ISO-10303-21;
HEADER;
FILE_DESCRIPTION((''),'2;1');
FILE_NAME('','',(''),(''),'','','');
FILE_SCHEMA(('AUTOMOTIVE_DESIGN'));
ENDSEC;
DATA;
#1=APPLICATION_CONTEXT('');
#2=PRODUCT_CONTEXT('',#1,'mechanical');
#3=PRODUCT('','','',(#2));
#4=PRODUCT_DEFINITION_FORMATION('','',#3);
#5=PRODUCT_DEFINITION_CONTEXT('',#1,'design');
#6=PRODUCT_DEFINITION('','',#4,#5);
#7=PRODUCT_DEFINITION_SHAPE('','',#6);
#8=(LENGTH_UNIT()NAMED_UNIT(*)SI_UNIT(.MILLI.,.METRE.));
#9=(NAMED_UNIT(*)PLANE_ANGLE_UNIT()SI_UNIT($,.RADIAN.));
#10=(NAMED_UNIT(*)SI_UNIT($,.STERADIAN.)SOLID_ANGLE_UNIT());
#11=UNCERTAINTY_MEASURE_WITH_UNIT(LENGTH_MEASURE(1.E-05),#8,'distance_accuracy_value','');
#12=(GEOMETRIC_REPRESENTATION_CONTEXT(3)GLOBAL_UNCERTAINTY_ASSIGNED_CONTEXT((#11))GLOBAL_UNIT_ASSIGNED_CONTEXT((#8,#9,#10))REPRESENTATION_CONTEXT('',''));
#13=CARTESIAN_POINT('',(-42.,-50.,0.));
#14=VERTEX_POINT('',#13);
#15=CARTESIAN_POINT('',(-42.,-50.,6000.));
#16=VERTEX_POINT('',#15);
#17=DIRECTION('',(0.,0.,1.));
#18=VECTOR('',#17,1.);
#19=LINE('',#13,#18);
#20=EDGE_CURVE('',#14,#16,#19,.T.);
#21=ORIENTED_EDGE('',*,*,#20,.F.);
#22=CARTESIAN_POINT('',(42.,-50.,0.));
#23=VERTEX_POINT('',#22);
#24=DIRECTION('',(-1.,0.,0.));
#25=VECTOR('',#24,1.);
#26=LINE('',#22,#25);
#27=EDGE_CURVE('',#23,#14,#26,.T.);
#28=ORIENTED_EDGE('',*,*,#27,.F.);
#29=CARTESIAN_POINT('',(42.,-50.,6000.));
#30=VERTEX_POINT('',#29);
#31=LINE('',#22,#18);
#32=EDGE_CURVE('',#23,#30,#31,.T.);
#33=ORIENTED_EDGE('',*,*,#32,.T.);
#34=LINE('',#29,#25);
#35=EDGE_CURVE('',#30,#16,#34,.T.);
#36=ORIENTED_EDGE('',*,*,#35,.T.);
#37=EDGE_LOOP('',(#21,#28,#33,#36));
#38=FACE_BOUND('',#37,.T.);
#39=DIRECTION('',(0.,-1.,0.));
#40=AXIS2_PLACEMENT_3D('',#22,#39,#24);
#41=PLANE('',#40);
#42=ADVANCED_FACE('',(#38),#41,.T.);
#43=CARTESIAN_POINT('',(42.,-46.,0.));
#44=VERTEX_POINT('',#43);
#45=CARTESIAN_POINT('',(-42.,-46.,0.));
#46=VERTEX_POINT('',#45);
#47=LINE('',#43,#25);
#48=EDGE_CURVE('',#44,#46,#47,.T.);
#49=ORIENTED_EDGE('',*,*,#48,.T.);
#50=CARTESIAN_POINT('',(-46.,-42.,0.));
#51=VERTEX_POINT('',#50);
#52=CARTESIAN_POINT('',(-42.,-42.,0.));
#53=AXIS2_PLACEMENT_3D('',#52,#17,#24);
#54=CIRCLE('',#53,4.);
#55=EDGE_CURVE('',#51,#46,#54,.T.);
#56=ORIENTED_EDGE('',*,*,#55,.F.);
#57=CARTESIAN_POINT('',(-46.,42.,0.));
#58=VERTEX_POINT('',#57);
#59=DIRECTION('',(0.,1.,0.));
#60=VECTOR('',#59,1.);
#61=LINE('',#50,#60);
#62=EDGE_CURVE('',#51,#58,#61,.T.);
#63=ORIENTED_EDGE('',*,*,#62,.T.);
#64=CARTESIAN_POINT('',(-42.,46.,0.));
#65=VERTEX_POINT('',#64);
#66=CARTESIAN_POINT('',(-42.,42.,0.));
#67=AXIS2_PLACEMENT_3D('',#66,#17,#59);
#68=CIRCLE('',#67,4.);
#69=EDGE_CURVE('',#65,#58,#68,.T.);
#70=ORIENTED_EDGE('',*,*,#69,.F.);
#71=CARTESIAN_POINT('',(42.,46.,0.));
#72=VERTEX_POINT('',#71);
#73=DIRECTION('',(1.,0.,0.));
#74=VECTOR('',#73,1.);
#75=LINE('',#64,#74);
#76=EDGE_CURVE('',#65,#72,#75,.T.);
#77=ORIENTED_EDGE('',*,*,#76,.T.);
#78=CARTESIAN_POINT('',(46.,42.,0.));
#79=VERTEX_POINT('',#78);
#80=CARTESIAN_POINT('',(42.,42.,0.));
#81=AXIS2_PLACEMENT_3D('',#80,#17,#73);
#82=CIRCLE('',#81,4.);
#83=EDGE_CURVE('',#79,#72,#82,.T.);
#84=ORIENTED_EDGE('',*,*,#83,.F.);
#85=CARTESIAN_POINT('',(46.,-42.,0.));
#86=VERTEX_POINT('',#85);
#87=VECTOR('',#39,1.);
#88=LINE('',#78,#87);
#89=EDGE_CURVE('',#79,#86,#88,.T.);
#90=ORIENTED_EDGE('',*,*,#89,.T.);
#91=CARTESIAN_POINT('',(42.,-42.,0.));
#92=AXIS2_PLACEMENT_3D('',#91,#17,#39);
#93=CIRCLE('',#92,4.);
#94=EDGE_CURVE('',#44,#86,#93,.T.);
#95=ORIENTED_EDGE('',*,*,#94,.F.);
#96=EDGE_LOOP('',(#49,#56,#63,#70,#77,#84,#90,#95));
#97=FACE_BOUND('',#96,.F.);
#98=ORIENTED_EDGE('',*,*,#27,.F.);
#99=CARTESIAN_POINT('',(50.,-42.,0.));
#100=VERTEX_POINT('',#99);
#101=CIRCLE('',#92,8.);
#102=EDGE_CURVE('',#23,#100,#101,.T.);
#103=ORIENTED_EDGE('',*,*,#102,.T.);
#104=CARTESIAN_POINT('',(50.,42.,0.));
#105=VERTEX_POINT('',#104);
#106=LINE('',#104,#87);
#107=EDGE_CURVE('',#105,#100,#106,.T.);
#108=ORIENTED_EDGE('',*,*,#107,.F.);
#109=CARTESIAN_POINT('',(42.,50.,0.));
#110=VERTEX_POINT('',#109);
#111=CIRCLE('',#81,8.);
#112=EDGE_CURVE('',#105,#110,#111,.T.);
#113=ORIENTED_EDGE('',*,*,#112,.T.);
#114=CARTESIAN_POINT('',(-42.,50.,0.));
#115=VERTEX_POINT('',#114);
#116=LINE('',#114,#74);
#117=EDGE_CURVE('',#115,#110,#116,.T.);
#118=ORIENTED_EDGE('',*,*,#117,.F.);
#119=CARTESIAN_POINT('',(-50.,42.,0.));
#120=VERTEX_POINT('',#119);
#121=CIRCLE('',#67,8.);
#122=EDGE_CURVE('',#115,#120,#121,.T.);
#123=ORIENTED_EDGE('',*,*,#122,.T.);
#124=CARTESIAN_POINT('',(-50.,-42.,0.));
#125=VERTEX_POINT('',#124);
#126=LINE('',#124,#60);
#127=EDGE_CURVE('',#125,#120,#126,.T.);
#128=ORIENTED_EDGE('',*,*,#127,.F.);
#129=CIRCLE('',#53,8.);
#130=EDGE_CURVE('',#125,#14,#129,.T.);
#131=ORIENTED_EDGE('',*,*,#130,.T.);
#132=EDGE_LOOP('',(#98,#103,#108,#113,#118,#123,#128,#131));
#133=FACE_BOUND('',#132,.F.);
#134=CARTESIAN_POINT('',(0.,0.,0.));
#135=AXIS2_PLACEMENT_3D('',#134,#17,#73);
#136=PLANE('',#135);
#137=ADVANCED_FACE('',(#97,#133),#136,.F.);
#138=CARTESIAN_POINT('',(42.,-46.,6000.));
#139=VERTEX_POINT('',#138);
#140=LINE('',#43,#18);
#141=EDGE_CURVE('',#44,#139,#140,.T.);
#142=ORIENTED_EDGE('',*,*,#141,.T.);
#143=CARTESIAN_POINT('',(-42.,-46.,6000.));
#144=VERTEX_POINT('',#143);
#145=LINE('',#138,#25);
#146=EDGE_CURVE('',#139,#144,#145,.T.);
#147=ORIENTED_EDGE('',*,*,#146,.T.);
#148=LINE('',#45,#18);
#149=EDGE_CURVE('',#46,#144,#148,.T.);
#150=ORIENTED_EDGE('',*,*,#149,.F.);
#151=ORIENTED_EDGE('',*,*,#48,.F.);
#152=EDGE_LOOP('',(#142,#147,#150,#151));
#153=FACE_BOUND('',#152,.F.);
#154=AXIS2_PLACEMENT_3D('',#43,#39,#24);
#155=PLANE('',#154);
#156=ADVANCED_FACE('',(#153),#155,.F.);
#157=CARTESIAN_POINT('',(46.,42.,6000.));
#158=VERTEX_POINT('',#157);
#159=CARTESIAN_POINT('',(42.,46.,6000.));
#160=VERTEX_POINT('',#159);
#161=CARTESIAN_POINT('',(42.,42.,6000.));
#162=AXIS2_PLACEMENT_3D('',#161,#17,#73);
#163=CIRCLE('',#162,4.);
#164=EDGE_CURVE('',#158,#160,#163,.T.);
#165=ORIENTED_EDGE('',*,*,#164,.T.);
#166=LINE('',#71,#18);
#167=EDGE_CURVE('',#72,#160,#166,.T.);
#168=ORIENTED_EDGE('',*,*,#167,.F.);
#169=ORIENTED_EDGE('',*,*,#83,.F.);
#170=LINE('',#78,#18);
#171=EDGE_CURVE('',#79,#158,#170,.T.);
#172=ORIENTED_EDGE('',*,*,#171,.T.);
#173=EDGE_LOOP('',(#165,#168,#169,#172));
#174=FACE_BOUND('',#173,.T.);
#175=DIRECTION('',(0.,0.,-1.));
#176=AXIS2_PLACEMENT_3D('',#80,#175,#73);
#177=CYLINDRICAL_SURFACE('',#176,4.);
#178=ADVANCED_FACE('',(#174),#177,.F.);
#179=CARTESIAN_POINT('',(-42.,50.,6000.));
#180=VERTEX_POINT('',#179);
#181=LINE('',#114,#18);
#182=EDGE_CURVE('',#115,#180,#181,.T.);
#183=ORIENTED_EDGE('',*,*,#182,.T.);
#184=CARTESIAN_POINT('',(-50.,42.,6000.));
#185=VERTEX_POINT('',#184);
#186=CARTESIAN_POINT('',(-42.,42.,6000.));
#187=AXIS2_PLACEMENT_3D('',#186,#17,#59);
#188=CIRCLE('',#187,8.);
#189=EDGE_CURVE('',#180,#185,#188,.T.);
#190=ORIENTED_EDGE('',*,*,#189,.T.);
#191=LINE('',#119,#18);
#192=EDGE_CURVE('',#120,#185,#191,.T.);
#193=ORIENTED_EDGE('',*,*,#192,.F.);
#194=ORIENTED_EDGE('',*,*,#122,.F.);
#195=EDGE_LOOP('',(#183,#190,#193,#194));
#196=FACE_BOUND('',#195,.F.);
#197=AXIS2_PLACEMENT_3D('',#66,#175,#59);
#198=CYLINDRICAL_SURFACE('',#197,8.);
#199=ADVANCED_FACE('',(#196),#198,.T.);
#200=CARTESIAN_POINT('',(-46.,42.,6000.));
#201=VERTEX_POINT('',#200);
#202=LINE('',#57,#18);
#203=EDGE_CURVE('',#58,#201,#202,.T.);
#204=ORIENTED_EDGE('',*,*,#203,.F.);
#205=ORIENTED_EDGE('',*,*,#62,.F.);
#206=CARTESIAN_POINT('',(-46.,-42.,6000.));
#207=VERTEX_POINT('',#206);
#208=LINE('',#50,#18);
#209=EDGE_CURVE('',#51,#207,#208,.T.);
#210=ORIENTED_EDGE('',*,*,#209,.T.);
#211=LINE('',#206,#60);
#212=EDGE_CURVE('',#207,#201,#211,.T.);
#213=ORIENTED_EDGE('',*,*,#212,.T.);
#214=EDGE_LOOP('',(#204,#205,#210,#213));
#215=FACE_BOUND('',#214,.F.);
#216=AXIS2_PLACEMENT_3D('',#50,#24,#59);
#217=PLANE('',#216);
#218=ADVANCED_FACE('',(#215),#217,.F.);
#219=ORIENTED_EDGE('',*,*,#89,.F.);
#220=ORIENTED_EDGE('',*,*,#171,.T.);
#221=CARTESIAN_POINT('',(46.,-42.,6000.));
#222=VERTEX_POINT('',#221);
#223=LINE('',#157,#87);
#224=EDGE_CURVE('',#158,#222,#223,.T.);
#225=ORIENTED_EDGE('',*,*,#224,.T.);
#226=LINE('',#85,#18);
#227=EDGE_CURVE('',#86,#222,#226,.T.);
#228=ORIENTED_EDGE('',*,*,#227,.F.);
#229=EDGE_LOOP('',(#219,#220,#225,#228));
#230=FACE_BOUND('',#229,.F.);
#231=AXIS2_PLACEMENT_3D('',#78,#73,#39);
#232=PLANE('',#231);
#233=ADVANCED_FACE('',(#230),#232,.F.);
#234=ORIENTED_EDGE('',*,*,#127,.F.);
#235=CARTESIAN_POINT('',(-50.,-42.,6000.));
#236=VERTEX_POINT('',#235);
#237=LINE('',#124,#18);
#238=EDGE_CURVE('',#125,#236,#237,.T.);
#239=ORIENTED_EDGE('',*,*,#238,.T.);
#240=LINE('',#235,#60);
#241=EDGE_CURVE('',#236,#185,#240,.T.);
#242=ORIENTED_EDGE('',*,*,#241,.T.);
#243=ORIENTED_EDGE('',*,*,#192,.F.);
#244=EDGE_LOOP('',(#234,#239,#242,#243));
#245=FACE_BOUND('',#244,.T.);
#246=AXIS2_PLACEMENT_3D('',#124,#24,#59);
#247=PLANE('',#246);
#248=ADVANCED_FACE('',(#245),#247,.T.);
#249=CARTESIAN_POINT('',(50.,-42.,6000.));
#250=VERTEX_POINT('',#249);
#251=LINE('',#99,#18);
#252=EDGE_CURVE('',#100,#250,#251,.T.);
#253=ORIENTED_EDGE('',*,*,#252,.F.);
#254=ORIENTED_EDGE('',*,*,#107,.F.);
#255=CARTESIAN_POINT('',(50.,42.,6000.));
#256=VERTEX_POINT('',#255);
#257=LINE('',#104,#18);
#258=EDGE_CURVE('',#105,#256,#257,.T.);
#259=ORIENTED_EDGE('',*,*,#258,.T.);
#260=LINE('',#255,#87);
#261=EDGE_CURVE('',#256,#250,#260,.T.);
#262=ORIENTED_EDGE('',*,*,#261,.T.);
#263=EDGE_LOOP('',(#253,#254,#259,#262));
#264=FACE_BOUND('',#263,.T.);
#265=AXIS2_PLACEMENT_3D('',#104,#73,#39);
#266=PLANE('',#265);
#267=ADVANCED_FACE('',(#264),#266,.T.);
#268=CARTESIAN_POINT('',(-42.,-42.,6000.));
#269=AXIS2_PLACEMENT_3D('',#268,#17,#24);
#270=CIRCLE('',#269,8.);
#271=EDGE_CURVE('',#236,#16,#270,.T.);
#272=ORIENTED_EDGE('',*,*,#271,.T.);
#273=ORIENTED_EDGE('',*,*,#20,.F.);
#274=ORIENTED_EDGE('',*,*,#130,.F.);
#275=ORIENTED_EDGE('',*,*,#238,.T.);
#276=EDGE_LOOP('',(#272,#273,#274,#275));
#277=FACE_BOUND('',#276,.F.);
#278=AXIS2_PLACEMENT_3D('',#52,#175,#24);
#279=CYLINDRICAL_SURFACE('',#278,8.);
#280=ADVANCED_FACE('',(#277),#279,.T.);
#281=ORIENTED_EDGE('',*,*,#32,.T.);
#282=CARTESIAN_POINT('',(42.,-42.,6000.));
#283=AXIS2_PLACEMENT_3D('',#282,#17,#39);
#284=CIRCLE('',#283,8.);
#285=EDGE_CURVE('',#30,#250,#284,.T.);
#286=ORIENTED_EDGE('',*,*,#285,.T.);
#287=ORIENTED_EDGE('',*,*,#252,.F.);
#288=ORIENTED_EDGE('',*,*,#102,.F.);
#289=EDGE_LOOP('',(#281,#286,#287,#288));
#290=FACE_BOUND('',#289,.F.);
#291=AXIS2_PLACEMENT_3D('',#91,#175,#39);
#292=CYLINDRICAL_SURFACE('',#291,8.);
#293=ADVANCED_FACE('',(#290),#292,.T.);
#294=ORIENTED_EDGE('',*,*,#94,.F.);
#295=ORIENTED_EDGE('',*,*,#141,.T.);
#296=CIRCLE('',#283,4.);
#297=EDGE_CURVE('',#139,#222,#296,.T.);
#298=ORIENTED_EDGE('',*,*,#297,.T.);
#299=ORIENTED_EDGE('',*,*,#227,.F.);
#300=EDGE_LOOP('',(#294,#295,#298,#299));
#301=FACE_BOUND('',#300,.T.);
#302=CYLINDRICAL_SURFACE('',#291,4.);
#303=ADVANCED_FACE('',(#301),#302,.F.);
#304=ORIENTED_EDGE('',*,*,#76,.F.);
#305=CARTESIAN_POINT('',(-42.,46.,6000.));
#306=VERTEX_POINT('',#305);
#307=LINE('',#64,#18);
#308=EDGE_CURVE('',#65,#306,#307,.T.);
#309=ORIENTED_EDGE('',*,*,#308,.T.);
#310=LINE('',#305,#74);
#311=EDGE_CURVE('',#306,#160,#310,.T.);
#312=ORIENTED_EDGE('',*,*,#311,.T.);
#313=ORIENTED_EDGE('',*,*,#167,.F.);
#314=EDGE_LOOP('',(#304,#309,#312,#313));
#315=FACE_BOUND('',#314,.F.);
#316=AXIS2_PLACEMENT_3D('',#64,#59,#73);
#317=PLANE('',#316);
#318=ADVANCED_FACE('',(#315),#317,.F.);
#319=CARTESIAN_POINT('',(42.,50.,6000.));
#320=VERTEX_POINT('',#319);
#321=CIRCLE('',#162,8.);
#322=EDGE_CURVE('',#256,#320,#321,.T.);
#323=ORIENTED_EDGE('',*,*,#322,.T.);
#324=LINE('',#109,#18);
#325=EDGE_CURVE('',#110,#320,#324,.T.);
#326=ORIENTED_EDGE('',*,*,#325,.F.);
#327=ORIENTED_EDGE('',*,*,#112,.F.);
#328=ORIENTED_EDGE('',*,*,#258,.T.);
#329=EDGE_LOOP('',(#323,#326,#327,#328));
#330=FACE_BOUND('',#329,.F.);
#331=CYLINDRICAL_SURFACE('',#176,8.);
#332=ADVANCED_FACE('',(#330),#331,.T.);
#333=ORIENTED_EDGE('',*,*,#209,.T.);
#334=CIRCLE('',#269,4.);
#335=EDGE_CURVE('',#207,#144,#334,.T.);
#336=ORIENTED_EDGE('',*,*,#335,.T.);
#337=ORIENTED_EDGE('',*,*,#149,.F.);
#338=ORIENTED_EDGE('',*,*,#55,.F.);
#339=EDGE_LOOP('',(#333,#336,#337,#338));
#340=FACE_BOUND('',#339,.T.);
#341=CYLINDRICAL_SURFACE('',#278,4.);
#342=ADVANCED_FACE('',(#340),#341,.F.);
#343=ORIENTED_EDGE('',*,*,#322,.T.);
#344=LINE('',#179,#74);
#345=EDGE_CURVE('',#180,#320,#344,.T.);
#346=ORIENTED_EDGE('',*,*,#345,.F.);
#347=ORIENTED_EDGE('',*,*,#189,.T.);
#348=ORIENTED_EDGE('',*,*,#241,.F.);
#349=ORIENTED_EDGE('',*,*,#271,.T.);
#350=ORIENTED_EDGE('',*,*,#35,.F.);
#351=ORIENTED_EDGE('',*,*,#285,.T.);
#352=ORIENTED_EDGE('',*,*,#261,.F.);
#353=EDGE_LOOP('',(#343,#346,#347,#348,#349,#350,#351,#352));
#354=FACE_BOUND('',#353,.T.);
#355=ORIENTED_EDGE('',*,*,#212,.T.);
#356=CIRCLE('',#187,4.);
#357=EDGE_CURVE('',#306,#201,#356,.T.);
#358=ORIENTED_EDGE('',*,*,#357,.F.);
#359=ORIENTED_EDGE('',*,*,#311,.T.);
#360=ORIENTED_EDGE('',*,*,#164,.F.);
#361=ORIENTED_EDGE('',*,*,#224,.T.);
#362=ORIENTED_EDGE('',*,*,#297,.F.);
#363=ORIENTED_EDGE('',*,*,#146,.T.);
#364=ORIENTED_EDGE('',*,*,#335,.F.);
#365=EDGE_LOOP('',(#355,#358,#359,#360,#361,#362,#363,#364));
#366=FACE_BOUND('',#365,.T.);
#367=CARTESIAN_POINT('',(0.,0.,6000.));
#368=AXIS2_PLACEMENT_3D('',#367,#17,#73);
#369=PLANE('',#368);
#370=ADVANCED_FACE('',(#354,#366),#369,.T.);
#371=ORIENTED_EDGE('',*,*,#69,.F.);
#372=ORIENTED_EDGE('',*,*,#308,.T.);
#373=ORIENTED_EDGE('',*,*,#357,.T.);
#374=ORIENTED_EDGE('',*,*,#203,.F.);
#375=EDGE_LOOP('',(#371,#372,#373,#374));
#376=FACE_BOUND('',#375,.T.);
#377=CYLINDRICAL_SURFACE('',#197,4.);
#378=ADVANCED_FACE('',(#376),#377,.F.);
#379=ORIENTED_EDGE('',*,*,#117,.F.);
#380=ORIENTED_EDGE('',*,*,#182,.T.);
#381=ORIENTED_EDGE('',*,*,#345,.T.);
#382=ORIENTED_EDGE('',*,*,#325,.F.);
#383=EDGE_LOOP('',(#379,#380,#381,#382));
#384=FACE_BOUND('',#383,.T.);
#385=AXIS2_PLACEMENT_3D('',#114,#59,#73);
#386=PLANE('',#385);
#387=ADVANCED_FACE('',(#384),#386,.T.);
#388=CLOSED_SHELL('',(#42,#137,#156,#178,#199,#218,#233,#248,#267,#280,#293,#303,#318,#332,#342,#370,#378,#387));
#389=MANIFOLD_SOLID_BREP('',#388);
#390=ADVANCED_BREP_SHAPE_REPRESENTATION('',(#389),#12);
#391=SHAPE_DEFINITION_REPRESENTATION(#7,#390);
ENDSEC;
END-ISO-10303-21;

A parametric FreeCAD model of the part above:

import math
import FreeCAD as App
import Part
import Sketcher

V = App.Vector
Q = App.Units.Quantity

doc = App.newDocument("Part")
params = doc.addObject("Spreadsheet::Sheet", "Params")
for row, (alias, value) in enumerate([
    ("sketch1_radius", "8 mm"),
    ("sketch1_radius2", "4 mm"),
    ("pad1_length", "6000 mm"),
], start=1):
    params.set(f"A{row}", alias)
    params.set(f"B{row}", "=" + value)
    params.setAlias(f"B{row}", alias)

body = doc.addObject("PartDesign::Body", "Body")

# Sketch on XY plane
sketch1 = body.newObject("Sketcher::SketchObject", "Sketch")
sketch1.AttachmentSupport = (doc.getObject("XY_Plane"), [""])
sketch1.MapMode = "FlatFace"
sketch1.addGeometry(Part.LineSegment(V(-50, 42, 0), V(-50, -42, 0)), False)
sketch1.addGeometry(Part.ArcOfCircle(Part.Circle(V(-42, -42, 0), V(0, 0, 1), 8), math.radians(180), math.radians(270)), False)
sketch1.addGeometry(Part.LineSegment(V(-42, -50, 0), V(42, -50, 0)), False)
sketch1.addGeometry(Part.ArcOfCircle(Part.Circle(V(42, -42, 0), V(0, 0, 1), 8), math.radians(-90), math.radians(0)), False)
sketch1.addGeometry(Part.LineSegment(V(50, -42, 0), V(50, 42, 0)), False)
sketch1.addGeometry(Part.ArcOfCircle(Part.Circle(V(42, 42, 0), V(0, 0, 1), 8), math.radians(0), math.radians(90)), False)
sketch1.addGeometry(Part.LineSegment(V(42, 50, 0), V(-42, 50, 0)), False)
sketch1.addGeometry(Part.ArcOfCircle(Part.Circle(V(-42, 42, 0), V(0, 0, 1), 8), math.radians(90), math.radians(180)), False)
sketch1.addGeometry(Part.ArcOfCircle(Part.Circle(V(-42, 42, 0), V(0, 0, 1), 4), math.radians(90), math.radians(180)), False)
sketch1.addGeometry(Part.LineSegment(V(-42, 46, 0), V(42, 46, 0)), False)
sketch1.addGeometry(Part.ArcOfCircle(Part.Circle(V(42, 42, 0), V(0, 0, 1), 4), math.radians(0), math.radians(90)), False)
sketch1.addGeometry(Part.LineSegment(V(46, 42, 0), V(46, -42, 0)), False)
sketch1.addGeometry(Part.ArcOfCircle(Part.Circle(V(42, -42, 0), V(0, 0, 1), 4), math.radians(-90), math.radians(0)), False)
sketch1.addGeometry(Part.LineSegment(V(42, -46, 0), V(-42, -46, 0)), False)
sketch1.addGeometry(Part.ArcOfCircle(Part.Circle(V(-42, -42, 0), V(0, 0, 1), 4), math.radians(180), math.radians(270)), False)
sketch1.addGeometry(Part.LineSegment(V(-46, -42, 0), V(-46, 42, 0)), False)
sketch1.addConstraint(Sketcher.Constraint("Tangent", 0, 2, 1, 1))
sketch1.addConstraint(Sketcher.Constraint("Tangent", 1, 2, 2, 1))
sketch1.addConstraint(Sketcher.Constraint("Tangent", 2, 2, 3, 1))
sketch1.addConstraint(Sketcher.Constraint("Tangent", 3, 2, 4, 1))
sketch1.addConstraint(Sketcher.Constraint("Tangent", 4, 2, 5, 1))
sketch1.addConstraint(Sketcher.Constraint("Tangent", 5, 2, 6, 1))
sketch1.addConstraint(Sketcher.Constraint("Tangent", 6, 2, 7, 1))
sketch1.addConstraint(Sketcher.Constraint("Tangent", 7, 2, 0, 1))
sketch1.addConstraint(Sketcher.Constraint("Tangent", 8, 1, 9, 1))
sketch1.addConstraint(Sketcher.Constraint("Tangent", 9, 2, 10, 2))
sketch1.addConstraint(Sketcher.Constraint("Tangent", 10, 1, 11, 1))
sketch1.addConstraint(Sketcher.Constraint("Tangent", 11, 2, 12, 2))
sketch1.addConstraint(Sketcher.Constraint("Tangent", 12, 1, 13, 1))
sketch1.addConstraint(Sketcher.Constraint("Tangent", 13, 2, 14, 2))
sketch1.addConstraint(Sketcher.Constraint("Tangent", 14, 1, 15, 1))
sketch1.addConstraint(Sketcher.Constraint("Tangent", 15, 2, 8, 2))
sketch1.addConstraint(Sketcher.Constraint("Vertical", 0))
sketch1.addConstraint(Sketcher.Constraint("Horizontal", 2))
sketch1.addConstraint(Sketcher.Constraint("Vertical", 4))
sketch1.addConstraint(Sketcher.Constraint("Horizontal", 6))
sketch1.addConstraint(Sketcher.Constraint("Horizontal", 9))
sketch1.addConstraint(Sketcher.Constraint("Vertical", 11))
sketch1.addConstraint(Sketcher.Constraint("Horizontal", 13))
sketch1.addConstraint(Sketcher.Constraint("Vertical", 15))
sketch1.addConstraint(Sketcher.Constraint("Coincident", 8, 3, 7, 3))
sketch1.addConstraint(Sketcher.Constraint("Coincident", 10, 3, 5, 3))
sketch1.addConstraint(Sketcher.Constraint("Coincident", 12, 3, 3, 3))
sketch1.addConstraint(Sketcher.Constraint("Equal", 1, 3))
sketch1.addConstraint(Sketcher.Constraint("Equal", 3, 5))
sketch1.addConstraint(Sketcher.Constraint("Equal", 5, 7))
sketch1.addConstraint(Sketcher.Constraint("Equal", 12, 14))
sketch1.addConstraint(Sketcher.Constraint("Symmetric", 1, 3, 5, 3, -1, 1))
sketch1.addConstraint(Sketcher.Constraint("Equal", 13, 0))
sketch1.addConstraint(Sketcher.Constraint("Radius", 1, Q("8 mm")))
sketch1.addConstraint(Sketcher.Constraint("Radius", 8, Q("4 mm")))
sketch1.addConstraint(Sketcher.Constraint("DistanceX", 0, 2, -1, 1, Q("50 mm")))
sketch1.setExpression("Constraints[33]", "Params.sketch1_radius")
sketch1.setExpression("Constraints[34]", "Params.sketch1_radius2")
pad1 = body.newObject("PartDesign::Pad", "Pad")
pad1.Profile = sketch1
pad1.setExpression("Length", "Params.pad1_length")

doc.recompute()
